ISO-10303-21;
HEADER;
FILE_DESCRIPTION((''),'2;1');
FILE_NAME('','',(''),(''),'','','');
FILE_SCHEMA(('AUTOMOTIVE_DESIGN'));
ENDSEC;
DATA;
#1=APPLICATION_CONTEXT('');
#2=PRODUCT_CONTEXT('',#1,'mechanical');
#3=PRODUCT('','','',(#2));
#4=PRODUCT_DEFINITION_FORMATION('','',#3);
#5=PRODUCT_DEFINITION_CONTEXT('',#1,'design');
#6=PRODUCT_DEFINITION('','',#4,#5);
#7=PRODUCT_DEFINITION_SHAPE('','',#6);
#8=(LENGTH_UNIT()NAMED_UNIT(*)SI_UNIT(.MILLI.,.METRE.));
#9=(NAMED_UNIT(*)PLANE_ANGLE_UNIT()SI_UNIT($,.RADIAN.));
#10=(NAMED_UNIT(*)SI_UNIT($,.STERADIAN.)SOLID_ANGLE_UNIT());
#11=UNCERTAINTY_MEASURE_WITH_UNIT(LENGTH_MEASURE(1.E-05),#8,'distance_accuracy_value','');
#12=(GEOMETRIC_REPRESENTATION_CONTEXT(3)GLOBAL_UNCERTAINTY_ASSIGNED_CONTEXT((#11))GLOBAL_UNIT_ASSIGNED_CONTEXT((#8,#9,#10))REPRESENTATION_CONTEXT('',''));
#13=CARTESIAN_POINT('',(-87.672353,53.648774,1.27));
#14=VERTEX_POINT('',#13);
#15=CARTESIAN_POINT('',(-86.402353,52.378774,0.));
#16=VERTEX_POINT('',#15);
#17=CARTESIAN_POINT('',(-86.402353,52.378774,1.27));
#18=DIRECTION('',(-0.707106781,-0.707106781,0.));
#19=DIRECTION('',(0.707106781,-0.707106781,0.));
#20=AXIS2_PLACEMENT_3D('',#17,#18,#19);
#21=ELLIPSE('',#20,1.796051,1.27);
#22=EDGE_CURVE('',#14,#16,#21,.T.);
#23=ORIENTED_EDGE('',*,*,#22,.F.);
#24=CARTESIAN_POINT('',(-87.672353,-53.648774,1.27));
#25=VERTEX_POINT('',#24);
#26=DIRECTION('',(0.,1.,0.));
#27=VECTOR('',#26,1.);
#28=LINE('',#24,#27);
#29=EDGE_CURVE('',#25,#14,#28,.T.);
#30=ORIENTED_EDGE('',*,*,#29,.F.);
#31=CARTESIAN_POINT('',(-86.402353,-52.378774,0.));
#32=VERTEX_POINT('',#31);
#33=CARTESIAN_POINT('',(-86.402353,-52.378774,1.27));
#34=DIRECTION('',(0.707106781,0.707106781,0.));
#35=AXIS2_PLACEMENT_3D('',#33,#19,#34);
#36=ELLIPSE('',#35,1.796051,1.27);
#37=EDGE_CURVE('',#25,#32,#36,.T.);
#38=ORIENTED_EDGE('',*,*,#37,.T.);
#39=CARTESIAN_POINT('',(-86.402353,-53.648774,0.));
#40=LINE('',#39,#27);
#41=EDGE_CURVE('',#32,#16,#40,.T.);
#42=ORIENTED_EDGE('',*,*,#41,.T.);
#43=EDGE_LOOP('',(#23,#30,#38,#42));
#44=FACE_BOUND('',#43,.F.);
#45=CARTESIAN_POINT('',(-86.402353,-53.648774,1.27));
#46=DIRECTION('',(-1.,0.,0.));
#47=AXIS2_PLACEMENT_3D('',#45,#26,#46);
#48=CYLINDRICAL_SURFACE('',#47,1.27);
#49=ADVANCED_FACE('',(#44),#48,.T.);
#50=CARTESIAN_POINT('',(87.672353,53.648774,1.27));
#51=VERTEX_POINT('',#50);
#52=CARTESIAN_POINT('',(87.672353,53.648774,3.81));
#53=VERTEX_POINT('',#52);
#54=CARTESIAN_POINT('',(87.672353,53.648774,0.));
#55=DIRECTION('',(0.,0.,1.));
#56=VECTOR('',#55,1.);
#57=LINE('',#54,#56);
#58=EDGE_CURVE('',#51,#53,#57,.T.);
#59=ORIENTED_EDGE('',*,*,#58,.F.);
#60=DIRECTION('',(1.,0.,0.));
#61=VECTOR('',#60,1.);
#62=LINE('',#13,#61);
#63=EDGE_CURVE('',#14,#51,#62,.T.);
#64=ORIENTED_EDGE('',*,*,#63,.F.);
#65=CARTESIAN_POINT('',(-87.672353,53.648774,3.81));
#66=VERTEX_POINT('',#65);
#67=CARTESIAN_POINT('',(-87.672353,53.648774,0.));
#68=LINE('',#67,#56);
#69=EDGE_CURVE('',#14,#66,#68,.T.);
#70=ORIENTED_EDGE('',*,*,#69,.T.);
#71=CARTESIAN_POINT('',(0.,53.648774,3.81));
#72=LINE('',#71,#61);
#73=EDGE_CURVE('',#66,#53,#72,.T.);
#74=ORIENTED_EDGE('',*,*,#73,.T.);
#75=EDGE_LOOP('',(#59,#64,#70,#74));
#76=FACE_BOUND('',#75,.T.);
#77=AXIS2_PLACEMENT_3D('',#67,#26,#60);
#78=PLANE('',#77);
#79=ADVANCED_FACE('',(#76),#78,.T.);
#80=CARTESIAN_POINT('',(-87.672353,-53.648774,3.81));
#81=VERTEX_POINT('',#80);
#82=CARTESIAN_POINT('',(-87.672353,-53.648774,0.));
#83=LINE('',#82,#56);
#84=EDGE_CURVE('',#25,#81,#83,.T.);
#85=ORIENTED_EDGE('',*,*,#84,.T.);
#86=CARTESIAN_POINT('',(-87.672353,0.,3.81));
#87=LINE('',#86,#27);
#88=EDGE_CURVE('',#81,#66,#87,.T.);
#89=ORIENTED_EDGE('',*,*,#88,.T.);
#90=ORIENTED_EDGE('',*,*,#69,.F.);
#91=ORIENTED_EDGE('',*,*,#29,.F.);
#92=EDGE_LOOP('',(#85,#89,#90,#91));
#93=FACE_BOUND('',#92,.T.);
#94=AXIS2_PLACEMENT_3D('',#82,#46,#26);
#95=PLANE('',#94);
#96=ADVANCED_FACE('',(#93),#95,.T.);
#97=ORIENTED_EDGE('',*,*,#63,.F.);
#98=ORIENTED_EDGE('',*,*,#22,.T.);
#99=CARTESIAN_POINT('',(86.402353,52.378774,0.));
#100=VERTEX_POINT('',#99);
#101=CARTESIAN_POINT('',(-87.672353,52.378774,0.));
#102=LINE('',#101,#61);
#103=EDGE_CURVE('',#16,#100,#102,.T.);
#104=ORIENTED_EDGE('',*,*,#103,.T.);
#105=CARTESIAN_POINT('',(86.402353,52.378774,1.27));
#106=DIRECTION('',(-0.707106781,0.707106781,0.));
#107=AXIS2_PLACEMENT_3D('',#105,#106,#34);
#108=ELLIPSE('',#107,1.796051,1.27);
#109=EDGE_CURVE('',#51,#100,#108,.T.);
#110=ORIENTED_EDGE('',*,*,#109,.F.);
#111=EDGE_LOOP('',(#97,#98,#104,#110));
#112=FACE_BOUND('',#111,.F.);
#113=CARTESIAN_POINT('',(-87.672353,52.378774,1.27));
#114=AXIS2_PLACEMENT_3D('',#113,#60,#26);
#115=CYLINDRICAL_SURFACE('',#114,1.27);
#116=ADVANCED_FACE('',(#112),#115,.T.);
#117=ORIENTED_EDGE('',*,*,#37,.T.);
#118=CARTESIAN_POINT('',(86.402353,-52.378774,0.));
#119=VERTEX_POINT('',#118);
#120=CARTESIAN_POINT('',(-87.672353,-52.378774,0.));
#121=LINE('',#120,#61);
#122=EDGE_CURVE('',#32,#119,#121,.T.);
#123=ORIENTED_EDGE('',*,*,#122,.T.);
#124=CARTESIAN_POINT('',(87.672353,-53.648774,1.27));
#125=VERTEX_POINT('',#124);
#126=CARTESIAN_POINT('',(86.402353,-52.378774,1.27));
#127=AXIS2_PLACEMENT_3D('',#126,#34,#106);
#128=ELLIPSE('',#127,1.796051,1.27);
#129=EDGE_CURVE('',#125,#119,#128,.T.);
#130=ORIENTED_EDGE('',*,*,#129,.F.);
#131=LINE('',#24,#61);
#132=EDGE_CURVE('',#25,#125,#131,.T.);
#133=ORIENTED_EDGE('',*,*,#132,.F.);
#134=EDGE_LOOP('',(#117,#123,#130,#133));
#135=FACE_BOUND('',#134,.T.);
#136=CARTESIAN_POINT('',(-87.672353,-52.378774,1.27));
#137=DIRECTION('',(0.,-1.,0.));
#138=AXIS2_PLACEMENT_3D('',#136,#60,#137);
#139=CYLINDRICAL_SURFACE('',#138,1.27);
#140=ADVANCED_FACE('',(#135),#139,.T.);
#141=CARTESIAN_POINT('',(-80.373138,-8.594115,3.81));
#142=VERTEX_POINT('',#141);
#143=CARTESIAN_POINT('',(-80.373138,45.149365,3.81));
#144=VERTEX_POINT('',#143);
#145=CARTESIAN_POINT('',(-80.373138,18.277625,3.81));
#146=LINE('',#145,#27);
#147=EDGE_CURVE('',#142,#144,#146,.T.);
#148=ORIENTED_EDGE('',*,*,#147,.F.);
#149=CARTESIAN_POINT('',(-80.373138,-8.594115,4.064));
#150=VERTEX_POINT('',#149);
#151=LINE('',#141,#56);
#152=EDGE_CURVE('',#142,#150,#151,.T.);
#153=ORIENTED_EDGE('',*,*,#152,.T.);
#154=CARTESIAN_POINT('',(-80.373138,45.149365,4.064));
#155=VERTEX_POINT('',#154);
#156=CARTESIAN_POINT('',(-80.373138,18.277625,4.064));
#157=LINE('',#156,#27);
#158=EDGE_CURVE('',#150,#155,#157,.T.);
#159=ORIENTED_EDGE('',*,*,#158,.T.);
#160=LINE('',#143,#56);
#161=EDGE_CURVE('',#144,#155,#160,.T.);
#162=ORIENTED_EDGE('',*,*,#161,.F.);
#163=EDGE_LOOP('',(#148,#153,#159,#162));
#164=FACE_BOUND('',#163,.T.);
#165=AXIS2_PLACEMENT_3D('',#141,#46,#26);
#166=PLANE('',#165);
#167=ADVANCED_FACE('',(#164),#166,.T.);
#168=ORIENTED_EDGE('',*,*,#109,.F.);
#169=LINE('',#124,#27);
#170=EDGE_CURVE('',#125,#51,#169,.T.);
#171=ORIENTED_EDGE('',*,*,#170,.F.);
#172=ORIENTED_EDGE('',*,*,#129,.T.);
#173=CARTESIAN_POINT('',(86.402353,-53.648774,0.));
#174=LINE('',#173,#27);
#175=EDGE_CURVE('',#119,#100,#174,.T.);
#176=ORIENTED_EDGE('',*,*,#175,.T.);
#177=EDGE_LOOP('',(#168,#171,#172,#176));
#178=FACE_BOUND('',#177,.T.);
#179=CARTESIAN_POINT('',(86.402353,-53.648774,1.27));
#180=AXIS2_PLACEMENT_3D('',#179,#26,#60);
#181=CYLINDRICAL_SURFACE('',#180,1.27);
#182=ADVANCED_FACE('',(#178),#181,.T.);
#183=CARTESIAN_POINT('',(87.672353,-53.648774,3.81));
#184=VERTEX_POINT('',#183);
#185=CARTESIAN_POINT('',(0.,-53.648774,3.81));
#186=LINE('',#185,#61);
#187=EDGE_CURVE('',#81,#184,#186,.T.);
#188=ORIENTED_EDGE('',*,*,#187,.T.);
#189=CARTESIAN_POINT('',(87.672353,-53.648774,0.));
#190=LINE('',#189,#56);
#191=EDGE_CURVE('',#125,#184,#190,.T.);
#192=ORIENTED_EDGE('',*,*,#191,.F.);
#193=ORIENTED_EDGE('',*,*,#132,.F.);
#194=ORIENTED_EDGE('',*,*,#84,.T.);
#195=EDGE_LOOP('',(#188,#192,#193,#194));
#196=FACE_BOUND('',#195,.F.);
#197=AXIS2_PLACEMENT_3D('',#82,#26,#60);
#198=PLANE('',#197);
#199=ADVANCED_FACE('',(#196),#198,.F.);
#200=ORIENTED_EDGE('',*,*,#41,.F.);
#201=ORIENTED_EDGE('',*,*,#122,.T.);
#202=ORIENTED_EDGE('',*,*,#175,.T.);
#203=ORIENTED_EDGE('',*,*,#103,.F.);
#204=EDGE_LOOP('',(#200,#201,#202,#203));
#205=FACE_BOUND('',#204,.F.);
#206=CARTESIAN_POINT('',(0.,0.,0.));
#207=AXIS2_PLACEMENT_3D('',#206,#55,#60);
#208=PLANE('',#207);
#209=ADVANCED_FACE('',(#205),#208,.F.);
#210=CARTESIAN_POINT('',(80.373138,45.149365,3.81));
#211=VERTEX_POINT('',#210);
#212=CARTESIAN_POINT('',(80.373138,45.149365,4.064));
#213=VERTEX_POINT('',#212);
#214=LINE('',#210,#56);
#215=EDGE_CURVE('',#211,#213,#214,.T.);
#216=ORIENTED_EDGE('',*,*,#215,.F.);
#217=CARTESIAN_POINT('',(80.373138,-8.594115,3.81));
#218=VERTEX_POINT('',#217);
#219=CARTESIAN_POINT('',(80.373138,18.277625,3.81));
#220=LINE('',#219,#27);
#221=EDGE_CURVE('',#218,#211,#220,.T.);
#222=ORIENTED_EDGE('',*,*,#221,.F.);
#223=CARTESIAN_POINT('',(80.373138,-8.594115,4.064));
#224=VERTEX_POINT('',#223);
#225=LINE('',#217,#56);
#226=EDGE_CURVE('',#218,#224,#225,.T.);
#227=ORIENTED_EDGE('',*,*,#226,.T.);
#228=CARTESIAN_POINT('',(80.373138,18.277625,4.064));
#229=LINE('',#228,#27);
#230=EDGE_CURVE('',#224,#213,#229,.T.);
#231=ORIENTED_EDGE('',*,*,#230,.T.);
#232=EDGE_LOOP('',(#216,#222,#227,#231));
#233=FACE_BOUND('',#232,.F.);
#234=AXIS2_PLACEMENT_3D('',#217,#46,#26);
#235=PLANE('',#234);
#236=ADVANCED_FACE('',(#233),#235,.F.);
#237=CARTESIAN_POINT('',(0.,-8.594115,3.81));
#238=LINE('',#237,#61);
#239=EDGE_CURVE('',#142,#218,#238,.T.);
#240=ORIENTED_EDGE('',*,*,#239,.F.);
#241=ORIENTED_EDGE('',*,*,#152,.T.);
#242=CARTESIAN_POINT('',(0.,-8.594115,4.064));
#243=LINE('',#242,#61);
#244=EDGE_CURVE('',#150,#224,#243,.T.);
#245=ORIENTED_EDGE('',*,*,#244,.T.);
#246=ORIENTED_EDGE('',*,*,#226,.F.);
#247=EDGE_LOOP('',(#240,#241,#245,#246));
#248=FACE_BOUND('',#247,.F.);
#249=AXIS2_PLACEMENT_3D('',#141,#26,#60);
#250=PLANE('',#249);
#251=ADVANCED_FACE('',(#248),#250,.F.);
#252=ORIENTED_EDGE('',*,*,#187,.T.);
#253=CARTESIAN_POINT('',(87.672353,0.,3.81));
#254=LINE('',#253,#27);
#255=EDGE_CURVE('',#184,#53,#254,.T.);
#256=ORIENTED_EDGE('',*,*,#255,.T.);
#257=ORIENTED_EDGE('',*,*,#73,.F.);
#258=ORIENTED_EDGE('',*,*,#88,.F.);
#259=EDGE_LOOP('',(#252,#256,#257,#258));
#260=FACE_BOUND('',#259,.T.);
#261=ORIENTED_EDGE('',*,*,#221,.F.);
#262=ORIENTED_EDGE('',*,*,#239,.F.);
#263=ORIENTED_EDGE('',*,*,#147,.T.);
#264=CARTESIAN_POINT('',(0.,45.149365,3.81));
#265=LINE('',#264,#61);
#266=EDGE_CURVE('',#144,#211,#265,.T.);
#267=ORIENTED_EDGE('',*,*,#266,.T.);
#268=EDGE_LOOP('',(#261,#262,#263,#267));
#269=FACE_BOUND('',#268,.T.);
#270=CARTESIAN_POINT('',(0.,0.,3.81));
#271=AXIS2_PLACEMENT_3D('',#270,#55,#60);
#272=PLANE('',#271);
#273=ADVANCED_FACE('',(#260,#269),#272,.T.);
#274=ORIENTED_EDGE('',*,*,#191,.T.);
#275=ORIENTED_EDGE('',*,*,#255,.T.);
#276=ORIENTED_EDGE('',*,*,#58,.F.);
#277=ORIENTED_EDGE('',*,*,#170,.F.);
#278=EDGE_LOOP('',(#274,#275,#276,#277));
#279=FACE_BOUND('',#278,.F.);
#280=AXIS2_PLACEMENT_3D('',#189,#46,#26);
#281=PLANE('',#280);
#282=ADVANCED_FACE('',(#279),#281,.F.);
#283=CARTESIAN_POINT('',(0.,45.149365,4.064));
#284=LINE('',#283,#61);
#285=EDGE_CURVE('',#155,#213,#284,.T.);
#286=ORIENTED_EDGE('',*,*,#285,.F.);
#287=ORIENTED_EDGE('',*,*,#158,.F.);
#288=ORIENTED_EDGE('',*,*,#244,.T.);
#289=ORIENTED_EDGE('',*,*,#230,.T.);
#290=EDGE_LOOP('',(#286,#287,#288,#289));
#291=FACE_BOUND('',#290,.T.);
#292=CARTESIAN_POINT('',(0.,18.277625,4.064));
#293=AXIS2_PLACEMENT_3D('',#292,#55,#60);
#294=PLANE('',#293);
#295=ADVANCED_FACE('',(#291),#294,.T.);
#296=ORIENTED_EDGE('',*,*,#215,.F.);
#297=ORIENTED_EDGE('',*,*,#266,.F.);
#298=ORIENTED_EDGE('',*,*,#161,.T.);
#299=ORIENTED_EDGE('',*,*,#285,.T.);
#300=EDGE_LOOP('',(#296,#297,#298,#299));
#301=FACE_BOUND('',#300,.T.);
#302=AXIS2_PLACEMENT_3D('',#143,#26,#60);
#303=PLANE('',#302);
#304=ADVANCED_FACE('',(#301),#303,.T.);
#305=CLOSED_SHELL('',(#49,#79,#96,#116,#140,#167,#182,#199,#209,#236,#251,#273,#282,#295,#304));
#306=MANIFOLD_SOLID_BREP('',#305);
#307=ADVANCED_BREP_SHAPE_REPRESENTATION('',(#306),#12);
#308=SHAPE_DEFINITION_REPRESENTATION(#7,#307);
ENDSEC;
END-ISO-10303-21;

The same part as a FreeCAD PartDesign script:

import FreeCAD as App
import Part
import Sketcher
Q = App.Units.Quantity


def edges_at(feature, points):
    """Names of the edges that pass closest to the given points."""
    edges = feature.Shape.Edges
    near = lambda p: min(range(len(edges)), key=lambda i: edges[i].distToShape(Part.Vertex(*p))[0])
    return sorted({f"Edge{near(p) + 1}" for p in points})


def add_polygon(sketch, points):
    """Adds a closed chain of lines whose ends are joined by coincident constraints."""
    first, n = sketch.GeometryCount, len(points)
    for a, b in zip(points, points[1:] + points[:1]):
        sketch.addGeometry(Part.LineSegment(App.Vector(*a, 0), App.Vector(*b, 0)), False)
    for i in range(n):
        sketch.addConstraint(Sketcher.Constraint("Coincident", first + i, 2, first + (i + 1) % n, 1))

doc = App.newDocument("Part")
body = doc.addObject("PartDesign::Body", "Body")

# Sketch on XY plane
sketch1 = body.newObject("Sketcher::SketchObject", "Sketch")
sketch1.AttachmentSupport = (doc.getObject("XY_Plane"), [""])
sketch1.MapMode = "FlatFace"
add_polygon(sketch1, [(-88, 54), (-88, -54), (88, -54), (88, 54)])  # lines 0-3
sketch1.addConstraint([
    Sketcher.Constraint("Vertical", 0),
    Sketcher.Constraint("Horizontal", 1),
    Sketcher.Constraint("Vertical", 2),
    Sketcher.Constraint("Horizontal", 3),
    Sketcher.Constraint("Symmetric", 0, 2, 2, 2, -1, 1),
    Sketcher.Constraint("DistanceY", 0, 2, 0, 1, 107.297548),
    Sketcher.Constraint("DistanceX", 1, 1, 1, 2, 175.344706),
])
pad1 = body.newObject("PartDesign::Pad", "Pad")
pad1.Profile = sketch1
pad1.Length = Q("0.15 in")
doc.recompute()

fillet = body.newObject("PartDesign::Fillet", "Fillet")
fillet.Base = (pad1, edges_at(pad1, [
    (87.672, 0, 0),
    (0, -53.649, 0),
    (0, 53.649, 0),
    (-87.672, 0, 0),
]))
fillet.Radius = Q("0.05 in")

# Sketch on XY plane
sketch2 = body.newObject("Sketcher::SketchObject", "Sketch001")
sketch2.AttachmentSupport = (doc.getObject("XY_Plane"), [""])
sketch2.MapMode = "FlatFace"
sketch2.AttachmentOffset = App.Placement(App.Vector(0, 0, 0.15 * 25.4), App.Rotation())
add_polygon(sketch2, [(-37, -10), (-37, -51), (37, -51), (37, -10)])  # lines 0-3
sketch2.addConstraint([
    Sketcher.Constraint("Vertical", 0),
    Sketcher.Constraint("Horizontal", 1),
    Sketcher.Constraint("Vertical", 2),
    Sketcher.Constraint("Horizontal", 3),
    Sketcher.Constraint("DistanceX", 1, 1, 1, 2, 73.110506),
    Sketcher.Constraint("DistanceY", 0, 2, 0, 1, 41.154918),
    Sketcher.Constraint("DistanceY", 0, 2, -1, 1, 50.959472),
    Sketcher.Constraint("DistanceX", 0, 2, -1, 1, 36.555253),
])
pad2 = body.newObject("PartDesign::Pad", "Pad001")
pad2.Profile = sketch2
pad2.Length = Q("0.1 in")
pad2.Reversed = True

# Sketch on XY plane
sketch3 = body.newObject("Sketcher::SketchObject", "Sketch002")
sketch3.AttachmentSupport = (doc.getObject("XY_Plane"), [""])
sketch3.MapMode = "FlatFace"
sketch3.AttachmentOffset = App.Placement(App.Vector(0, 0, 0.15 * 25.4), App.Rotation())
add_polygon(sketch3, [(-80, 45), (-80, -9), (80, -9), (80, 45)])  # lines 0-3
sketch3.addConstraint([
    Sketcher.Constraint("Vertical", 0),
    Sketcher.Constraint("Horizontal", 1),
    Sketcher.Constraint("Vertical", 2),
    Sketcher.Constraint("Horizontal", 3),
    Sketcher.Constraint("DistanceY", 0, 2, 0, 1, 53.74348),
    Sketcher.Constraint("DistanceX", 1, 1, 1, 2, 160.746276),
    Sketcher.Constraint("DistanceX", 0, 2, -1, 1, 80.373138),
    Sketcher.Constraint("DistanceY", 0, 2, -1, 1, 8.594115),
])
pad3 = body.newObject("PartDesign::Pad", "Pad002")
pad3.Profile = sketch3
pad3.Length = Q("0.01 in")

doc.recompute()
